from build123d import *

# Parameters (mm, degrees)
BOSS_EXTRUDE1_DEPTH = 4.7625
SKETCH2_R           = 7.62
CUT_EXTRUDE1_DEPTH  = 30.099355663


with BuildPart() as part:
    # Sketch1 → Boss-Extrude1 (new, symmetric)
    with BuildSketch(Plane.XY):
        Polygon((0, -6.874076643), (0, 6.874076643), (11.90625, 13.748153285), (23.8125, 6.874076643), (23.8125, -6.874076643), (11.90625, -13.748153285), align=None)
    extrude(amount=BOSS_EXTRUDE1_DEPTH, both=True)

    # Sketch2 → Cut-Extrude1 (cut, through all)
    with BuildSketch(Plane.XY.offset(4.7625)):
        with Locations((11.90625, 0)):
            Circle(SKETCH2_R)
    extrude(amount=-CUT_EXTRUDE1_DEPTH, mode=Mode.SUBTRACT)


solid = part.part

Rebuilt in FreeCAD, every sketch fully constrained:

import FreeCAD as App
import Part
import Sketcher
Q = App.Units.Quantity


def add_polygon(sketch, points):
    """Adds a closed chain of lines whose ends are joined by coincident constraints."""
    first, n = sketch.GeometryCount, len(points)
    for a, b in zip(points, points[1:] + points[:1]):
        sketch.addGeometry(Part.LineSegment(App.Vector(*a, 0), App.Vector(*b, 0)), False)
    for i in range(n):
        sketch.addConstraint(Sketcher.Constraint("Coincident", first + i, 2, first + (i + 1) % n, 1))

doc = App.newDocument("Part")
params = doc.addObject("Spreadsheet::Sheet", "Params")
for row, (alias, value) in enumerate([
    ("pad1_length", "0.375 in"),
    ("sketch2_diameter", "0.6 in"),
], start=1):
    params.set(f"A{row}", alias)
    params.set(f"B{row}", "=" + value)
    params.setAlias(f"B{row}", alias)

body = doc.addObject("PartDesign::Body", "Body")

sketch1 = doc.addObject("Sketcher::SketchObject", "Sketch")
body.addObject(sketch1)
sketch1.AttachmentSupport = (doc.XY_Plane, [""])
sketch1.MapMode = "FlatFace"
add_polygon(sketch1, [(0, 6.874077), (0, -6.874077), (11.90625, -13.748153), (23.8125, -6.874077), (23.8125, 6.874077), (11.90625, 13.748153)])
sketch1.addConstraint([
    Sketcher.Constraint("Vertical", 0),
    Sketcher.Constraint("Vertical", 3),
    Sketcher.Constraint("Symmetric", 0, 2, 5, 2, -1, 1),
    Sketcher.Constraint("Symmetric", 1, 2, 4, 2, -1),
    Sketcher.Constraint("Parallel", 1, 4),
    Sketcher.Constraint("Parallel", 2, 5),
    Sketcher.Constraint("Horizontal", 0, 2, 2, 2),
    Sketcher.Constraint("Angle", 1, Q("-30 deg")),
    Sketcher.Constraint("DistanceX", -1, 1, 1, 2, Q("0.46875 in")),
    Sketcher.Constraint("DistanceY", 0, 2, 0, 1, Q("13.748153 mm")),
])
pad1 = doc.addObject("PartDesign::Pad", "Pad")
body.addObject(pad1)
pad1.Profile = sketch1
pad1.setExpression("Length", "Params.pad1_length")
pad1.Midplane = True

sketch2 = doc.addObject("Sketcher::SketchObject", "Sketch001")
body.addObject(sketch2)
sketch2.AttachmentSupport = (doc.XY_Plane, [""])
sketch2.MapMode = "FlatFace"
sketch2.AttachmentOffset = App.Placement(App.Vector(0, 0, 0.1875 * 25.4), App.Rotation())
sketch2.addGeometry(Part.Circle(App.Vector(11.90625, 0, 0), App.Vector(0, 0, 1), 7.62), False)
sketch2.addConstraint([
    Sketcher.Constraint("PointOnObject", 0, 3, -1),
    Sketcher.Constraint("Diameter", 0, Q("0.6 in")),
    Sketcher.Constraint("DistanceX", -1, 1, 0, 3, Q("0.46875 in")),
])
sketch2.setExpression("Constraints[1]", "Params.sketch2_diameter")
pocket1 = doc.addObject("PartDesign::Pocket", "Pocket")
body.addObject(pocket1)
pocket1.Profile = sketch2
pocket1.Type = "ThroughAll"

doc.recompute()
